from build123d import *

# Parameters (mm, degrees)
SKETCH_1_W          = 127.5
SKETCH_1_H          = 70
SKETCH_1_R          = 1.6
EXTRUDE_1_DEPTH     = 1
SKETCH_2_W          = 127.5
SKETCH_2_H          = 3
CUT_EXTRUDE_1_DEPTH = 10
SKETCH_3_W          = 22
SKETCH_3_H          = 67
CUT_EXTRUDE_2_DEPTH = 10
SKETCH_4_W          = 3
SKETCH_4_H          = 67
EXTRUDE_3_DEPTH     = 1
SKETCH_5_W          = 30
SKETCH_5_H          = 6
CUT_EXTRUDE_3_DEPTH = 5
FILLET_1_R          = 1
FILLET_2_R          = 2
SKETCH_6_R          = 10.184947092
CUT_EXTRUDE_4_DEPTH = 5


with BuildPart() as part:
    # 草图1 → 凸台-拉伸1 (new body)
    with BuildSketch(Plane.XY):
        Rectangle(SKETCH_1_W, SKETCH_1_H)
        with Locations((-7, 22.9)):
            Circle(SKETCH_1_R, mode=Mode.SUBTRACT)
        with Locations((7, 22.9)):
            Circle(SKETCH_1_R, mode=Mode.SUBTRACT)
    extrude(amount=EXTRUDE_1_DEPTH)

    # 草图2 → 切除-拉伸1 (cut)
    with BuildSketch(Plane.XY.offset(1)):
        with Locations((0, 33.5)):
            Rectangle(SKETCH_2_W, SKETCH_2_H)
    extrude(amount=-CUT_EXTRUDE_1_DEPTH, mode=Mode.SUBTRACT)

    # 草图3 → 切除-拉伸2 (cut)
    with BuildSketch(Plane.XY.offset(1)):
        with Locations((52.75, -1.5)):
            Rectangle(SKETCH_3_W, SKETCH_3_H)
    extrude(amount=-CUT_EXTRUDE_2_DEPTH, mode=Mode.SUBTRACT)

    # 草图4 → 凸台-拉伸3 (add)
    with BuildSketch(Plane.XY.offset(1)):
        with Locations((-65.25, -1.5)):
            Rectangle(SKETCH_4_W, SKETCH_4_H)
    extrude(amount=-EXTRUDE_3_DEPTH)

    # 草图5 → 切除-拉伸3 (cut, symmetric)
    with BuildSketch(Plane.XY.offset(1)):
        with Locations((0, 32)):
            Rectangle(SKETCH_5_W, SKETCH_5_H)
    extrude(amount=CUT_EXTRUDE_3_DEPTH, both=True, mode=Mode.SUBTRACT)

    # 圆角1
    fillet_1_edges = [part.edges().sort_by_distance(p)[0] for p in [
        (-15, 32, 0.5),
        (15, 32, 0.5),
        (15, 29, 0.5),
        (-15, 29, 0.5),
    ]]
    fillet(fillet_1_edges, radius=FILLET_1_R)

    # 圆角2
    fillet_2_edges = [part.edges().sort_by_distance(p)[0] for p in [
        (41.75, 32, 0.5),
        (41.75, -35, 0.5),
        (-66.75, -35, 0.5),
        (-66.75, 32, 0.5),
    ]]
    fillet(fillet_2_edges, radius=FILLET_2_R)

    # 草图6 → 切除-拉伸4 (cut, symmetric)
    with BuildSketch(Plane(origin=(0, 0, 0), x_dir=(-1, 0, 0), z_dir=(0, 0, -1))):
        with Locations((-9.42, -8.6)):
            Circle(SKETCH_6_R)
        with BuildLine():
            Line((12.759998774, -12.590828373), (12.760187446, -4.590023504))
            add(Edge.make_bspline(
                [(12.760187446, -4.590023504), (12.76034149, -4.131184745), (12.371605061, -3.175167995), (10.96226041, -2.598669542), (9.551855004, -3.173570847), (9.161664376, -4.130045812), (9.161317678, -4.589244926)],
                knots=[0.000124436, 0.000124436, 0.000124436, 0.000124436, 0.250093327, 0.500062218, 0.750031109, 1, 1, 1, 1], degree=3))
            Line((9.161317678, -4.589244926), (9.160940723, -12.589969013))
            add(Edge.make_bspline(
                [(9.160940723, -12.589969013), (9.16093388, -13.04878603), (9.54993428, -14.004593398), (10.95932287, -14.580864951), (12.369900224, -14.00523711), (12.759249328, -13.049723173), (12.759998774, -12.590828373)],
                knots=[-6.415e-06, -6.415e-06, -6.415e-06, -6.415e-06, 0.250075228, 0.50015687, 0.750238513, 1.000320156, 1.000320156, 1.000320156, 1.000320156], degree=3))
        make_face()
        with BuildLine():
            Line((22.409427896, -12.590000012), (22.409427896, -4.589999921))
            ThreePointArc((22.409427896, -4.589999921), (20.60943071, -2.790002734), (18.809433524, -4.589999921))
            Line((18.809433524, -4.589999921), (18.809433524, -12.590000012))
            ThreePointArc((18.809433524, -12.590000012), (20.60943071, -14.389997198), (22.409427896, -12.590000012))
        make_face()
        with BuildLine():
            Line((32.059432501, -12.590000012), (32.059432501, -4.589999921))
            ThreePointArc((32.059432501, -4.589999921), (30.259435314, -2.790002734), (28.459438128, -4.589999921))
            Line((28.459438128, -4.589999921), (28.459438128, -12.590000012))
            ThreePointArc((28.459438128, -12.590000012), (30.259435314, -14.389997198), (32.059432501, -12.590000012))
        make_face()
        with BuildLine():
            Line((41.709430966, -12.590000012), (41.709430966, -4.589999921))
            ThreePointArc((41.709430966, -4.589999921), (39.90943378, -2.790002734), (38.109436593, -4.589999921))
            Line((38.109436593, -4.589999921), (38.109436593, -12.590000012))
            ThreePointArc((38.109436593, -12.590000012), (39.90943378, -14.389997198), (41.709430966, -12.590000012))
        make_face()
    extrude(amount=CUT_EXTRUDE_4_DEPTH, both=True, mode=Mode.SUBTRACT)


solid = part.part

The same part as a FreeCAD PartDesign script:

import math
import FreeCAD as App
import Part
import Sketcher
Q = App.Units.Quantity


def edges_at(feature, points):
    """Names of the edges that pass closest to the given points."""
    edges = feature.Shape.Edges
    near = lambda p: min(range(len(edges)), key=lambda i: edges[i].distToShape(Part.Vertex(*p))[0])
    return sorted({f"Edge{near(p) + 1}" for p in points})

doc = App.newDocument("Part")
body = doc.addObject("PartDesign::Body", "Body")

# Sketch on XY plane
sketch1 = body.newObject("Sketcher::SketchObject", "Sketch")
sketch1.AttachmentSupport = (doc.getObject("XY_Plane"), [""])
sketch1.MapMode = "FlatFace"
sketch1.addGeometry(Part.LineSegment(App.Vector(-63.75, 35, 0), App.Vector(-63.75, -35, 0)), False)
sketch1.addGeometry(Part.LineSegment(App.Vector(-63.75, -35, 0), App.Vector(63.75, -35, 0)), False)
sketch1.addGeometry(Part.LineSegment(App.Vector(63.75, -35, 0), App.Vector(63.75, 35, 0)), False)
sketch1.addGeometry(Part.LineSegment(App.Vector(63.75, 35, 0), App.Vector(-63.75, 35, 0)), False)
sketch1.addGeometry(Part.Circle(App.Vector(-7, 22.9, 0), App.Vector(0, 0, 1), 1.6), False)
sketch1.addGeometry(Part.Circle(App.Vector(7, 22.9, 0), App.Vector(0, 0, 1), 1.6), False)
sketch1.addConstraint(Sketcher.Constraint("Coincident", 0, 2, 1, 1))
sketch1.addConstraint(Sketcher.Constraint("Coincident", 1, 2, 2, 1))
sketch1.addConstraint(Sketcher.Constraint("Coincident", 2, 2, 3, 1))
sketch1.addConstraint(Sketcher.Constraint("Coincident", 3, 2, 0, 1))
sketch1.addConstraint(Sketcher.Constraint("Vertical", 0))
sketch1.addConstraint(Sketcher.Constraint("Horizontal", 1))
sketch1.addConstraint(Sketcher.Constraint("Vertical", 2))
sketch1.addConstraint(Sketcher.Constraint("Horizontal", 3))
sketch1.addConstraint(Sketcher.Constraint("Equal", 4, 5))
sketch1.addConstraint(Sketcher.Constraint("Symmetric", 0, 2, 2, 2, -1, 1))
sketch1.addConstraint(Sketcher.Constraint("Symmetric", 4, 3, 5, 3, -2))
sketch1.addConstraint(Sketcher.Constraint("Diameter", 4, Q("3.2 mm")))
sketch1.addConstraint(Sketcher.Constraint("DistanceY", 0, 2, 0, 1, Q("70 mm")))
sketch1.addConstraint(Sketcher.Constraint("DistanceX", 1, 1, 1, 2, Q("127.5 mm")))
sketch1.addConstraint(Sketcher.Constraint("DistanceX", 4, 3, -1, 1, Q("7 mm")))
sketch1.addConstraint(Sketcher.Constraint("DistanceY", -1, 1, 4, 3, Q("22.9 mm")))
pad1 = body.newObject("PartDesign::Pad", "Pad")
pad1.Profile = sketch1
pad1.Length = 1

# Sketch on XY plane
sketch2 = body.newObject("Sketcher::SketchObject", "Sketch001")
sketch2.AttachmentSupport = (doc.getObject("XY_Plane"), [""])
sketch2.MapMode = "FlatFace"
sketch2.AttachmentOffset = App.Placement(App.Vector(0, 0, 1), App.Rotation())
sketch2.addGeometry(Part.LineSegment(App.Vector(-63.75, 35, 0), App.Vector(-63.75, 32, 0)), False)
sketch2.addGeometry(Part.LineSegment(App.Vector(-63.75, 32, 0), App.Vector(63.75, 32, 0)), False)
sketch2.addGeometry(Part.LineSegment(App.Vector(63.75, 32, 0), App.Vector(63.75, 35, 0)), False)
sketch2.addGeometry(Part.LineSegment(App.Vector(63.75, 35, 0), App.Vector(-63.75, 35, 0)), False)
sketch2.addConstraint(Sketcher.Constraint("Coincident", 0, 2, 1, 1))
sketch2.addConstraint(Sketcher.Constraint("Coincident", 1, 2, 2, 1))
sketch2.addConstraint(Sketcher.Constraint("Coincident", 2, 2, 3, 1))
sketch2.addConstraint(Sketcher.Constraint("Coincident", 3, 2, 0, 1))
sketch2.addConstraint(Sketcher.Constraint("Vertical", 0))
sketch2.addConstraint(Sketcher.Constraint("Horizontal", 1))
sketch2.addConstraint(Sketcher.Constraint("Vertical", 2))
sketch2.addConstraint(Sketcher.Constraint("Horizontal", 3))
sketch2.addConstraint(Sketcher.Constraint("DistanceY", 0, 2, 0, 1, Q("3 mm")))
sketch2.addConstraint(Sketcher.Constraint("DistanceX", 1, 1, 1, 2, Q("127.5 mm")))
sketch2.addConstraint(Sketcher.Constraint("DistanceY", -1, 1, 0, 2, Q("32 mm")))
sketch2.addConstraint(Sketcher.Constraint("DistanceX", 0, 2, -1, 1, Q("63.75 mm")))
pocket1 = body.newObject("PartDesign::Pocket", "Pocket")
pocket1.Profile = sketch2
pocket1.Length = 10

# Sketch on XY plane
sketch3 = body.newObject("Sketcher::SketchObject", "Sketch002")
sketch3.AttachmentSupport = (doc.getObject("XY_Plane"), [""])
sketch3.MapMode = "FlatFace"
sketch3.AttachmentOffset = App.Placement(App.Vector(0, 0, 1), App.Rotation())
sketch3.addGeometry(Part.LineSegment(App.Vector(41.75, 32, 0), App.Vector(41.75, -35, 0)), False)
sketch3.addGeometry(Part.LineSegment(App.Vector(41.75, -35, 0), App.Vector(63.75, -35, 0)), False)
sketch3.addGeometry(Part.LineSegment(App.Vector(63.75, -35, 0), App.Vector(63.75, 32, 0)), False)
sketch3.addGeometry(Part.LineSegment(App.Vector(63.75, 32, 0), App.Vector(41.75, 32, 0)), False)
sketch3.addConstraint(Sketcher.Constraint("Coincident", 0, 2, 1, 1))
sketch3.addConstraint(Sketcher.Constraint("Coincident", 1, 2, 2, 1))
sketch3.addConstraint(Sketcher.Constraint("Coincident", 2, 2, 3, 1))
sketch3.addConstraint(Sketcher.Constraint("Coincident", 3, 2, 0, 1))
sketch3.addConstraint(Sketcher.Constraint("Vertical", 0))
sketch3.addConstraint(Sketcher.Constraint("Horizontal", 1))
sketch3.addConstraint(Sketcher.Constraint("Vertical", 2))
sketch3.addConstraint(Sketcher.Constraint("Horizontal", 3))
sketch3.addConstraint(Sketcher.Constraint("DistanceX", 1, 1, 1, 2, Q("22 mm")))
sketch3.addConstraint(Sketcher.Constraint("DistanceY", 0, 2, 0, 1, Q("67 mm")))
sketch3.addConstraint(Sketcher.Constraint("DistanceY", 0, 2, -1, 1, Q("35 mm")))
sketch3.addConstraint(Sketcher.Constraint("DistanceX", -1, 1, 0, 2, Q("41.75 mm")))
pocket2 = body.newObject("PartDesign::Pocket", "Pocket001")
pocket2.Profile = sketch3
pocket2.Length = 10

# Sketch on XY plane
sketch4 = body.newObject("Sketcher::SketchObject", "Sketch003")
sketch4.AttachmentSupport = (doc.getObject("XY_Plane"), [""])
sketch4.MapMode = "FlatFace"
sketch4.AttachmentOffset = App.Placement(App.Vector(0, 0, 1), App.Rotation())
sketch4.addGeometry(Part.LineSegment(App.Vector(-66.75, 32, 0), App.Vector(-66.75, -35, 0)), False)
sketch4.addGeometry(Part.LineSegment(App.Vector(-66.75, -35, 0), App.Vector(-63.75, -35, 0)), False)
sketch4.addGeometry(Part.LineSegment(App.Vector(-63.75, -35, 0), App.Vector(-63.75, 32, 0)), False)
sketch4.addGeometry(Part.LineSegment(App.Vector(-63.75, 32, 0), App.Vector(-66.75, 32, 0)), False)
sketch4.addConstraint(Sketcher.Constraint("Coincident", 0, 2, 1, 1))
sketch4.addConstraint(Sketcher.Constraint("Coincident", 1, 2, 2, 1))
sketch4.addConstraint(Sketcher.Constraint("Coincident", 2, 2, 3, 1))
sketch4.addConstraint(Sketcher.Constraint("Coincident", 3, 2, 0, 1))
sketch4.addConstraint(Sketcher.Constraint("Vertical", 0))
sketch4.addConstraint(Sketcher.Constraint("Horizontal", 1))
sketch4.addConstraint(Sketcher.Constraint("Vertical", 2))
sketch4.addConstraint(Sketcher.Constraint("Horizontal", 3))
sketch4.addConstraint(Sketcher.Constraint("DistanceX", 1, 1, 1, 2, Q("3 mm")))
sketch4.addConstraint(Sketcher.Constraint("DistanceY", 0, 2, 0, 1, Q("67 mm")))
sketch4.addConstraint(Sketcher.Constraint("DistanceY", 0, 2, -1, 1, Q("35 mm")))
sketch4.addConstraint(Sketcher.Constraint("DistanceX", 0, 2, -1, 1, Q("66.75 mm")))
pad2 = body.newObject("PartDesign::Pad", "Pad001")
pad2.Profile = sketch4
pad2.Length = 1
pad2.Reversed = True

# Sketch on XY plane
sketch5 = body.newObject("Sketcher::SketchObject", "Sketch004")
sketch5.AttachmentSupport = (doc.getObject("XY_Plane"), [""])
sketch5.MapMode = "FlatFace"
sketch5.AttachmentOffset = App.Placement(App.Vector(0, 0, 1), App.Rotation())
sketch5.addGeometry(Part.LineSegment(App.Vector(-15, 35, 0), App.Vector(-15, 29, 0)), False)
sketch5.addGeometry(Part.LineSegment(App.Vector(-15, 29, 0), App.Vector(15, 29, 0)), False)
sketch5.addGeometry(Part.LineSegment(App.Vector(15, 29, 0), App.Vector(15, 35, 0)), False)
sketch5.addGeometry(Part.LineSegment(App.Vector(15, 35, 0), App.Vector(-15, 35, 0)), False)
sketch5.addConstraint(Sketcher.Constraint("Coincident", 0, 2, 1, 1))
sketch5.addConstraint(Sketcher.Constraint("Coincident", 1, 2, 2, 1))
sketch5.addConstraint(Sketcher.Constraint("Coincident", 2, 2, 3, 1))
sketch5.addConstraint(Sketcher.Constraint("Coincident", 3, 2, 0, 1))
sketch5.addConstraint(Sketcher.Constraint("Vertical", 0))
sketch5.addConstraint(Sketcher.Constraint("Horizontal", 1))
sketch5.addConstraint(Sketcher.Constraint("Vertical", 2))
sketch5.addConstraint(Sketcher.Constraint("Horizontal", 3))
sketch5.addConstraint(Sketcher.Constraint("DistanceX", 1, 1, 1, 2, Q("30 mm")))
sketch5.addConstraint(Sketcher.Constraint("DistanceY", 0, 2, 0, 1, Q("6 mm")))
sketch5.addConstraint(Sketcher.Constraint("DistanceX", 0, 2, -1, 1, Q("15 mm")))
sketch5.addConstraint(Sketcher.Constraint("DistanceY", -1, 1, 0, 2, Q("29 mm")))
pocket3 = body.newObject("PartDesign::Pocket", "Pocket002")
pocket3.Profile = sketch5
pocket3.Length = 10
pocket3.Midplane = True
doc.recompute()

fillet = body.newObject("PartDesign::Fillet", "Fillet")
fillet.Base = (pocket3, edges_at(pocket3, [
    (-15, 32, 0.5),
    (15, 32, 0.5),
    (15, 29, 0.5),
    (-15, 29, 0.5),
]))
fillet.Radius = 1
doc.recompute()

fillet2 = body.newObject("PartDesign::Fillet", "Fillet001")
fillet2.Base = (fillet, edges_at(fillet, [
    (41.75, 32, 0.5),
    (41.75, -35, 0.5),
    (-66.75, -35, 0.5),
    (-66.75, 32, 0.5),
]))
fillet2.Radius = 2

# Sketch on XY plane
sketch6 = body.newObject("Sketcher::SketchObject", "Sketch005")
sketch6.AttachmentSupport = (doc.getObject("XY_Plane"), [""])
sketch6.MapMode = "FlatFace"
sketch6.addGeometry(Part.Circle(App.Vector(9.42, -8.6, 0), App.Vector(0, 0, 1), 10.184947), False)
sketch6.addGeometry(Part.LineSegment(App.Vector(-12.759999, -12.590828, 0), App.Vector(-12.760187, -4.590024, 0)), False)
sketch6.addGeometry(Part.BSplineCurve([App.Vector(-12.760187, -4.590024, 0), App.Vector(-12.760341, -4.131185, 0), App.Vector(-12.371605, -3.175168, 0), App.Vector(-10.96226, -2.59867, 0), App.Vector(-9.551855, -3.173571, 0), App.Vector(-9.161664, -4.130046, 0), App.Vector(-9.161318, -4.589245, 0)], [4, 1, 1, 1, 4], [0.000124436, 0.250093327, 0.500062218, 0.750031109, 1], False, 3, [1, 1, 1, 1, 1, 1, 1], False), False)
sketch6.addGeometry(Part.LineSegment(App.Vector(-9.161318, -4.589245, 0), App.Vector(-9.160941, -12.589969, 0)), False)
sketch6.addGeometry(Part.BSplineCurve([App.Vector(-9.160941, -12.589969, 0), App.Vector(-9.160934, -13.048786, 0), App.Vector(-9.549934, -14.004593, 0), App.Vector(-10.959323, -14.580865, 0), App.Vector(-12.3699, -14.005237, 0), App.Vector(-12.759249, -13.049723, 0), App.Vector(-12.759999, -12.590828, 0)], [4, 1, 1, 1, 4], [-0.000006415, 0.250075228, 0.50015687, 0.750238513, 1.000320156], False, 3, [1, 1, 1, 1, 1, 1, 1], False), False)
sketch6.addGeometry(Part.LineSegment(App.Vector(-22.409428, -12.59, 0), App.Vector(-22.409428, -4.59, 0)), False)
sketch6.addGeometry(Part.ArcOfCircle(Part.Circle(App.Vector(-20.609431, -4.59, 0), App.Vector(0, 0, 1), 1.799997), math.radians(0), math.radians(180)), False)
sketch6.addGeometry(Part.LineSegment(App.Vector(-18.809434, -4.59, 0), App.Vector(-18.809434, -12.59, 0)), False)
sketch6.addGeometry(Part.ArcOfCircle(Part.Circle(App.Vector(-20.609431, -12.59, 0), App.Vector(0, 0, 1), 1.799997), math.radians(180), math.radians(360)), False)
sketch6.addGeometry(Part.LineSegment(App.Vector(-32.059433, -12.59, 0), App.Vector(-32.059433, -4.59, 0)), False)
sketch6.addGeometry(Part.ArcOfCircle(Part.Circle(App.Vector(-30.259435, -4.59, 0), App.Vector(0, 0, 1), 1.799997), math.radians(0), math.radians(180)), False)
sketch6.addGeometry(Part.LineSegment(App.Vector(-28.459438, -4.59, 0), App.Vector(-28.459438, -12.59, 0)), False)
sketch6.addGeometry(Part.ArcOfCircle(Part.Circle(App.Vector(-30.259435, -12.59, 0), App.Vector(0, 0, 1), 1.799997), math.radians(-180), math.radians(0)), False)
sketch6.addGeometry(Part.LineSegment(App.Vector(-41.709431, -12.59, 0), App.Vector(-41.709431, -4.59, 0)), False)
sketch6.addGeometry(Part.ArcOfCircle(Part.Circle(App.Vector(-39.909434, -4.59, 0), App.Vector(0, 0, 1), 1.799997), math.radians(0), math.radians(180)), False)
sketch6.addGeometry(Part.LineSegment(App.Vector(-38.109437, -4.59, 0), App.Vector(-38.109437, -12.59, 0)), False)
sketch6.addGeometry(Part.ArcOfCircle(Part.Circle(App.Vector(-39.909434, -12.59, 0), App.Vector(0, 0, 1), 1.799997), math.radians(-180), math.radians(0)), False)
sketch6.addConstraint(Sketcher.Constraint("Block", 2))
sketch6.addConstraint(Sketcher.Constraint("Block", 4))
sketch6.addConstraint(Sketcher.Constraint("Coincident", 1, 2, 2, 1))
sketch6.addConstraint(Sketcher.Constraint("Coincident", 2, 2, 3, 1))
sketch6.addConstraint(Sketcher.Constraint("Coincident", 3, 2, 4, 1))
sketch6.addConstraint(Sketcher.Constraint("Coincident", 4, 2, 1, 1))
sketch6.addConstraint(Sketcher.Constraint("Tangent", 5, 2, 6, 2))
sketch6.addConstraint(Sketcher.Constraint("Tangent", 6, 1, 7, 1))
sketch6.addConstraint(Sketcher.Constraint("Tangent", 7, 2, 8, 2))
sketch6.addConstraint(Sketcher.Constraint("Tangent", 8, 1, 5, 1))
sketch6.addConstraint(Sketcher.Constraint("Tangent", 9, 2, 10, 2))
sketch6.addConstraint(Sketcher.Constraint("Tangent", 10, 1, 11, 1))
sketch6.addConstraint(Sketcher.Constraint("Tangent", 11, 2, 12, 2))
sketch6.addConstraint(Sketcher.Constraint("Tangent", 12, 1, 9, 1))
sketch6.addConstraint(Sketcher.Constraint("Tangent", 13, 2, 14, 2))
sketch6.addConstraint(Sketcher.Constraint("Tangent", 14, 1, 15, 1))
sketch6.addConstraint(Sketcher.Constraint("Tangent", 15, 2, 16, 2))
sketch6.addConstraint(Sketcher.Constraint("Tangent", 16, 1, 13, 1))
sketch6.addConstraint(Sketcher.Constraint("Vertical", 5))
sketch6.addConstraint(Sketcher.Constraint("Vertical", 7))
sketch6.addConstraint(Sketcher.Constraint("Vertical", 9))
sketch6.addConstraint(Sketcher.Constraint("Vertical", 11))
sketch6.addConstraint(Sketcher.Constraint("Vertical", 13))
sketch6.addConstraint(Sketcher.Constraint("Vertical", 15))
sketch6.addConstraint(Sketcher.Constraint("Equal", 8, 10))
sketch6.addConstraint(Sketcher.Constraint("Equal", 12, 14))
sketch6.addConstraint(Sketcher.Constraint("Horizontal", 6, 3, 10, 3))
sketch6.addConstraint(Sketcher.Constraint("Horizontal", 8, 3, 12, 3))
sketch6.addConstraint(Sketcher.Constraint("Horizontal", 10, 3, 14, 3))
sketch6.addConstraint(Sketcher.Constraint("Horizontal", 12, 3, 16, 3))
sketch6.addConstraint(Sketcher.Constraint("DistanceY", 5, 1, 5, 2, Q("8 mm")))
sketch6.addConstraint(Sketcher.Constraint("DistanceY", 0, 3, -1, 1, Q("8.6 mm")))
sketch6.addConstraint(Sketcher.Constraint("DistanceX", -1, 1, 0, 3, Q("9.42 mm")))
sketch6.addConstraint(Sketcher.Constraint("DistanceY", 6, 3, -1, 1, Q("4.59 mm")))
sketch6.addConstraint(Sketcher.Constraint("DistanceX", 14, 3, 10, 3, Q("9.649998 mm")))
sketch6.addConstraint(Sketcher.Constraint("DistanceX", 10, 3, 6, 1, Q("11.450002 mm")))
sketch6.addConstraint(Sketcher.Constraint("DistanceX", 14, 3, 9, 2, Q("7.850001 mm")))
sketch6.addConstraint(Sketcher.Constraint("Diameter", 0, Q("20.369894 mm")))
sketch6.addConstraint(Sketcher.Constraint("DistanceX", 6, 3, -1, 1, Q("20.609431 mm")))
pocket4 = body.newObject("PartDesign::Pocket", "Pocket003")
pocket4.Profile = sketch6
pocket4.Length = 10
pocket4.Midplane = True

doc.recompute()
